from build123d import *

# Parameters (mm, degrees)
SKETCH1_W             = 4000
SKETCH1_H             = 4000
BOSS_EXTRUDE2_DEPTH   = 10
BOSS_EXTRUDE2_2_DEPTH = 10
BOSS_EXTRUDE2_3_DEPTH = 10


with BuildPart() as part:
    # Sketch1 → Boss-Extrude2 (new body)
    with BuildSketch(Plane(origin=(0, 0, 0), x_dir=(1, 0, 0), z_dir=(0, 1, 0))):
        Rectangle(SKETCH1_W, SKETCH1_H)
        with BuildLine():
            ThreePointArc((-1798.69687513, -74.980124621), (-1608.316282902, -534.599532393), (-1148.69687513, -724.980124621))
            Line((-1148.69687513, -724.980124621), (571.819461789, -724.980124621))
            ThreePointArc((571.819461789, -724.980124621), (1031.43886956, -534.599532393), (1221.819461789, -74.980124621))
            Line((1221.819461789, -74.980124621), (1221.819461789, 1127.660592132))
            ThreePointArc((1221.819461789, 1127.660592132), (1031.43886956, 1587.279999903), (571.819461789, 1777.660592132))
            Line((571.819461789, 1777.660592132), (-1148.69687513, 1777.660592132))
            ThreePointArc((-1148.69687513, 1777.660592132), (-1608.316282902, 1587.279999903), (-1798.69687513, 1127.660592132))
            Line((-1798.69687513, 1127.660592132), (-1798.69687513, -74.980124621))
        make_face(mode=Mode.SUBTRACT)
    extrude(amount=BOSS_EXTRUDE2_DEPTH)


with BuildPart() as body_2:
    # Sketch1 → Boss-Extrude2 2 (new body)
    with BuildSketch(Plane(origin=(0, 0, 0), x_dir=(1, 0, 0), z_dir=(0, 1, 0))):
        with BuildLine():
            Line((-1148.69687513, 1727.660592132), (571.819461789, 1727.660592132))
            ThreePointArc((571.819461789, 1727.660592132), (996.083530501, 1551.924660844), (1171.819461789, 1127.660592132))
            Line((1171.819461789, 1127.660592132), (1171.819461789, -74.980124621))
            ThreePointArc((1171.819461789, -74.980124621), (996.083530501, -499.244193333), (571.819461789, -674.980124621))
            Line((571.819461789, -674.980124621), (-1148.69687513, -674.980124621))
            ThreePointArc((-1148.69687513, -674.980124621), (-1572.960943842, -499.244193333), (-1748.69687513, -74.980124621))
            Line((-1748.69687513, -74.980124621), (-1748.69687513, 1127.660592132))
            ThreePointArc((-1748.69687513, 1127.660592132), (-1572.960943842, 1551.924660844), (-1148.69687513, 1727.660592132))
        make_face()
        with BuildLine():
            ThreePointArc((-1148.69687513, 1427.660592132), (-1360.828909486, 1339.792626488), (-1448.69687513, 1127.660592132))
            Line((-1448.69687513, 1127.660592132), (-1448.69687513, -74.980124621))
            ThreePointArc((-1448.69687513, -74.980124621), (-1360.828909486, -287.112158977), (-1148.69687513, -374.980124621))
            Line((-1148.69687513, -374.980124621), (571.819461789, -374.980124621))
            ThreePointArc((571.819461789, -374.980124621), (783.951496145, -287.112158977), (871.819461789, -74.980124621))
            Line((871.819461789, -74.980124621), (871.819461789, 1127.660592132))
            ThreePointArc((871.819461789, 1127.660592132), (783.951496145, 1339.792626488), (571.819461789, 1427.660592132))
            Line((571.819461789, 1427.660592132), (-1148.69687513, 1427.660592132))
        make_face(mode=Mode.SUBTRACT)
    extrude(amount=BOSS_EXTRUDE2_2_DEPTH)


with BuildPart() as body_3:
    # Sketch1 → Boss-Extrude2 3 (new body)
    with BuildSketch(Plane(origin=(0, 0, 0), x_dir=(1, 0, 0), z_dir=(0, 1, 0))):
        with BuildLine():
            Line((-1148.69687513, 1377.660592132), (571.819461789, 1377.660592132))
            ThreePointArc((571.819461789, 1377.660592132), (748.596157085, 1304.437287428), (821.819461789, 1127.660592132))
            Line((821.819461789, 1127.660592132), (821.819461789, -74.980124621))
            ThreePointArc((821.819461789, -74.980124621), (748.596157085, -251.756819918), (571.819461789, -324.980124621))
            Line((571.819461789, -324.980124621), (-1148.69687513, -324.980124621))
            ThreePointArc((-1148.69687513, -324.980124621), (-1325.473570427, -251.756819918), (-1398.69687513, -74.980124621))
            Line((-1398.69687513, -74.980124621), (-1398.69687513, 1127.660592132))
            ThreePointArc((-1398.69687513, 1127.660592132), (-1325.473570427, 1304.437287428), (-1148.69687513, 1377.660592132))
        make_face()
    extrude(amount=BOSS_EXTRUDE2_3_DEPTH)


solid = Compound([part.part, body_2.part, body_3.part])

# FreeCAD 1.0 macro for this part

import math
import FreeCAD as App
import Part
import Sketcher
from FreeCAD import Vector


def add_polygon(sketch, points):
    """Adds a closed chain of lines whose ends are joined by coincident constraints."""
    first, n = sketch.GeometryCount, len(points)
    for a, b in zip(points, points[1:] + points[:1]):
        sketch.addGeometry(Part.LineSegment(App.Vector(*a, 0), App.Vector(*b, 0)), False)
    for i in range(n):
        sketch.addConstraint(Sketcher.Constraint("Coincident", first + i, 2, first + (i + 1) % n, 1))

doc = App.newDocument("Part")
body = doc.addObject("PartDesign::Body", "Body")

# Sketch on XZ plane
sketch1 = body.newObject("Sketcher::SketchObject", "Sketch")
sketch1.AttachmentSupport = (doc.getObject("XZ_Plane"), [""])
sketch1.MapMode = "FlatFace"
add_polygon(sketch1, [(-2000, -2000), (-2000, 2000), (2000, 2000), (2000, -2000)])  # lines 0-3
sketch1.addGeometry(Part.ArcOfCircle(Part.Circle(Vector(-1149, 75, 0), Vector(0, 0, 1), 650), math.radians(90), math.radians(180)), False)  # 4
sketch1.addGeometry(Part.LineSegment(Vector(-1799, 75, 0), Vector(-1799, -1128, 0)), False)  # 5
sketch1.addGeometry(Part.ArcOfCircle(Part.Circle(Vector(-1149, -1128, 0), Vector(0, 0, 1), 650), math.radians(180), math.radians(270)), False)  # 6
sketch1.addGeometry(Part.LineSegment(Vector(-1149, -1778, 0), Vector(572, -1778, 0)), False)  # 7
sketch1.addGeometry(Part.ArcOfCircle(Part.Circle(Vector(572, -1128, 0), Vector(0, 0, 1), 650), math.radians(-90), math.radians(0)), False)  # 8
sketch1.addGeometry(Part.LineSegment(Vector(1222, -1128, 0), Vector(1222, 75, 0)), False)  # 9
sketch1.addGeometry(Part.ArcOfCircle(Part.Circle(Vector(572, 75, 0), Vector(0, 0, 1), 650), math.radians(0), math.radians(90)), False)  # 10
sketch1.addGeometry(Part.LineSegment(Vector(572, 725, 0), Vector(-1149, 725, 0)), False)  # 11
sketch1.addConstraint([
    Sketcher.Constraint("Tangent", 4, 2, 5, 1),
    Sketcher.Constraint("Tangent", 5, 2, 6, 1),
    Sketcher.Constraint("Tangent", 6, 2, 7, 1),
    Sketcher.Constraint("Tangent", 7, 2, 8, 1),
    Sketcher.Constraint("Tangent", 8, 2, 9, 1),
    Sketcher.Constraint("Tangent", 9, 2, 10, 1),
    Sketcher.Constraint("Tangent", 10, 2, 11, 1),
    Sketcher.Constraint("Tangent", 11, 2, 4, 1),
    Sketcher.Constraint("Vertical", 0),
    Sketcher.Constraint("Horizontal", 1),
    Sketcher.Constraint("Vertical", 2),
    Sketcher.Constraint("Horizontal", 3),
    Sketcher.Constraint("Vertical", 5),
    Sketcher.Constraint("Horizontal", 7),
    Sketcher.Constraint("Vertical", 9),
    Sketcher.Constraint("Horizontal", 11),
    Sketcher.Constraint("Equal", 4, 6),
    Sketcher.Constraint("Equal", 6, 8),
    Sketcher.Constraint("Equal", 8, 10),
    Sketcher.Constraint("Symmetric", 0, 2, 2, 2, -1, 1),
    Sketcher.Constraint("Equal", 3, 0),
    Sketcher.Constraint("Radius", 4, 650.0),
    Sketcher.Constraint("DistanceX", 1, 1, 1, 2, 4000.0),
    Sketcher.Constraint("DistanceX", 7, 1, 7, 2, 1720.516337),
    Sketcher.Constraint("DistanceY", 5, 2, 5, 1, 1202.640717),
    Sketcher.Constraint("DistanceX", -1, 1, 8, 3, 571.819462),
    Sketcher.Constraint("DistanceY", -1, 1, 4, 3, 74.980125),
])
pad1 = body.newObject("PartDesign::Pad", "Pad")
pad1.Profile = sketch1
pad1.Length = 10
pad1.Reversed = True
body2 = doc.addObject("PartDesign::Body", "Body001")

# Sketch on XZ plane
sketch2 = body2.newObject("Sketcher::SketchObject", "Sketch001")
sketch2.AttachmentSupport = (doc.getObject("XZ_Plane001"), [""])
sketch2.MapMode = "FlatFace"
sketch2.addGeometry([
    Part.LineSegment(Vector(572, -1728, 0), Vector(-1149, -1728, 0)),  # 0
    Part.ArcOfCircle(Part.Circle(Vector(-1149, -1128, 0), Vector(0, 0, 1), 600), math.radians(180), math.radians(270)),  # 1
    Part.LineSegment(Vector(-1749, -1128, 0), Vector(-1749, 75, 0)),  # 2
    Part.ArcOfCircle(Part.Circle(Vector(-1149, 75, 0), Vector(0, 0, 1), 600), math.radians(90), math.radians(180)),  # 3
    Part.LineSegment(Vector(-1149, 675, 0), Vector(572, 675, 0)),  # 4
    Part.ArcOfCircle(Part.Circle(Vector(572, 75, 0), Vector(0, 0, 1), 600), math.radians(0), math.radians(90)),  # 5
    Part.LineSegment(Vector(1172, 75, 0), Vector(1172, -1128, 0)),  # 6
    Part.ArcOfCircle(Part.Circle(Vector(572, -1128, 0), Vector(0, 0, 1), 600), math.radians(-90), math.radians(0)),  # 7
    Part.LineSegment(Vector(-1149, -1428, 0), Vector(572, -1428, 0)),  # 8
    Part.ArcOfCircle(Part.Circle(Vector(572, -1128, 0), Vector(0, 0, 1), 300), math.radians(-90), math.radians(0)),  # 9
    Part.LineSegment(Vector(872, -1128, 0), Vector(872, 75, 0)),  # 10
    Part.ArcOfCircle(Part.Circle(Vector(572, 75, 0), Vector(0, 0, 1), 300), math.radians(0), math.radians(90)),  # 11
    Part.LineSegment(Vector(572, 375, 0), Vector(-1149, 375, 0)),  # 12
    Part.ArcOfCircle(Part.Circle(Vector(-1149, 75, 0), Vector(0, 0, 1), 300), math.radians(90), math.radians(180)),  # 13
    Part.LineSegment(Vector(-1449, 75, 0), Vector(-1449, -1128, 0)),  # 14
    Part.ArcOfCircle(Part.Circle(Vector(-1149, -1128, 0), Vector(0, 0, 1), 300), math.radians(180), math.radians(270)),  # 15
], False)
sketch2.addConstraint([
    Sketcher.Constraint("Tangent", 0, 2, 1, 2),
    Sketcher.Constraint("Tangent", 1, 1, 2, 1),
    Sketcher.Constraint("Tangent", 2, 2, 3, 2),
    Sketcher.Constraint("Tangent", 3, 1, 4, 1),
    Sketcher.Constraint("Tangent", 4, 2, 5, 2),
    Sketcher.Constraint("Tangent", 5, 1, 6, 1),
    Sketcher.Constraint("Tangent", 6, 2, 7, 2),
    Sketcher.Constraint("Tangent", 7, 1, 0, 1),
    Sketcher.Constraint("Tangent", 8, 2, 9, 1),
    Sketcher.Constraint("Tangent", 9, 2, 10, 1),
    Sketcher.Constraint("Tangent", 10, 2, 11, 1),
    Sketcher.Constraint("Tangent", 11, 2, 12, 1),
    Sketcher.Constraint("Tangent", 12, 2, 13, 1),
    Sketcher.Constraint("Tangent", 13, 2, 14, 1),
    Sketcher.Constraint("Tangent", 14, 2, 15, 1),
    Sketcher.Constraint("Tangent", 15, 2, 8, 1),
    Sketcher.Constraint("Horizontal", 0),
    Sketcher.Constraint("Vertical", 2),
    Sketcher.Constraint("Horizontal", 4),
    Sketcher.Constraint("Vertical", 6),
    Sketcher.Constraint("Horizontal", 8),
    Sketcher.Constraint("Vertical", 10),
    Sketcher.Constraint("Horizontal", 12),
    Sketcher.Constraint("Vertical", 14),
    Sketcher.Constraint("Coincident", 9, 3, 7, 3),
    Sketcher.Constraint("Coincident", 11, 3, 5, 3),
    Sketcher.Constraint("Coincident", 13, 3, 3, 3),
    Sketcher.Constraint("Equal", 1, 3),
    Sketcher.Constraint("Equal", 3, 5),
    Sketcher.Constraint("Equal", 5, 7),
    Sketcher.Constraint("Equal", 13, 15),
    Sketcher.Constraint("Radius", 1, 600.0),
    Sketcher.Constraint("Radius", 9, 300.0),
    Sketcher.Constraint("DistanceX", 0, 2, 0, 1, 1720.516337),
    Sketcher.Constraint("DistanceY", 2, 1, 2, 2, 1202.640717),
    Sketcher.Constraint("DistanceX", -1, 1, 5, 3, 571.819462),
    Sketcher.Constraint("DistanceY", 1, 3, -1, 1, 1127.660592),
])
pad2 = body2.newObject("PartDesign::Pad", "Pad001")
pad2.Profile = sketch2
pad2.Length = 10
pad2.Reversed = True
body3 = doc.addObject("PartDesign::Body", "Body002")

# Sketch on XZ plane
sketch3 = body3.newObject("Sketcher::SketchObject", "Sketch002")
sketch3.AttachmentSupport = (doc.getObject("XZ_Plane002"), [""])
sketch3.MapMode = "FlatFace"
sketch3.addGeometry([
    Part.LineSegment(Vector(572, -1378, 0), Vector(-1149, -1378, 0)),  # 0
    Part.ArcOfCircle(Part.Circle(Vector(-1149, -1128, 0), Vector(0, 0, 1), 250), math.radians(180), math.radians(270)),  # 1
    Part.LineSegment(Vector(-1399, -1128, 0), Vector(-1399, 75, 0)),  # 2
    Part.ArcOfCircle(Part.Circle(Vector(-1149, 75, 0), Vector(0, 0, 1), 250), math.radians(90), math.radians(180)),  # 3
    Part.LineSegment(Vector(-1149, 325, 0), Vector(572, 325, 0)),  # 4
    Part.ArcOfCircle(Part.Circle(Vector(572, 75, 0), Vector(0, 0, 1), 250), math.radians(0), math.radians(90)),  # 5
    Part.LineSegment(Vector(822, 75, 0), Vector(822, -1128, 0)),  # 6
    Part.ArcOfCircle(Part.Circle(Vector(572, -1128, 0), Vector(0, 0, 1), 250), math.radians(-90), math.radians(0)),  # 7
], False)
sketch3.addConstraint([
    Sketcher.Constraint("Tangent", 0, 2, 1, 2),
    Sketcher.Constraint("Tangent", 1, 1, 2, 1),
    Sketcher.Constraint("Tangent", 2, 2, 3, 2),
    Sketcher.Constraint("Tangent", 3, 1, 4, 1),
    Sketcher.Constraint("Tangent", 4, 2, 5, 2),
    Sketcher.Constraint("Tangent", 5, 1, 6, 1),
    Sketcher.Constraint("Tangent", 6, 2, 7, 2),
    Sketcher.Constraint("Tangent", 7, 1, 0, 1),
    Sketcher.Constraint("Horizontal", 0),
    Sketcher.Constraint("Vertical", 2),
    Sketcher.Constraint("Horizontal", 4),
    Sketcher.Constraint("Vertical", 6),
    Sketcher.Constraint("Equal", 1, 3),
    Sketcher.Constraint("Equal", 3, 5),
    Sketcher.Constraint("Equal", 5, 7),
    Sketcher.Constraint("Radius", 1, 250.0),
    Sketcher.Constraint("DistanceX", 0, 2, 0, 1, 1720.516337),
    Sketcher.Constraint("DistanceY", 2, 1, 2, 2, 1202.640717),
    Sketcher.Constraint("DistanceX", -1, 1, 5, 3, 571.819462),
    Sketcher.Constraint("DistanceY", 1, 3, -1, 1, 1127.660592),
])
pad3 = body3.newObject("PartDesign::Pad", "Pad002")
pad3.Profile = sketch3
pad3.Length = 10
pad3.Reversed = True

doc.recompute()
